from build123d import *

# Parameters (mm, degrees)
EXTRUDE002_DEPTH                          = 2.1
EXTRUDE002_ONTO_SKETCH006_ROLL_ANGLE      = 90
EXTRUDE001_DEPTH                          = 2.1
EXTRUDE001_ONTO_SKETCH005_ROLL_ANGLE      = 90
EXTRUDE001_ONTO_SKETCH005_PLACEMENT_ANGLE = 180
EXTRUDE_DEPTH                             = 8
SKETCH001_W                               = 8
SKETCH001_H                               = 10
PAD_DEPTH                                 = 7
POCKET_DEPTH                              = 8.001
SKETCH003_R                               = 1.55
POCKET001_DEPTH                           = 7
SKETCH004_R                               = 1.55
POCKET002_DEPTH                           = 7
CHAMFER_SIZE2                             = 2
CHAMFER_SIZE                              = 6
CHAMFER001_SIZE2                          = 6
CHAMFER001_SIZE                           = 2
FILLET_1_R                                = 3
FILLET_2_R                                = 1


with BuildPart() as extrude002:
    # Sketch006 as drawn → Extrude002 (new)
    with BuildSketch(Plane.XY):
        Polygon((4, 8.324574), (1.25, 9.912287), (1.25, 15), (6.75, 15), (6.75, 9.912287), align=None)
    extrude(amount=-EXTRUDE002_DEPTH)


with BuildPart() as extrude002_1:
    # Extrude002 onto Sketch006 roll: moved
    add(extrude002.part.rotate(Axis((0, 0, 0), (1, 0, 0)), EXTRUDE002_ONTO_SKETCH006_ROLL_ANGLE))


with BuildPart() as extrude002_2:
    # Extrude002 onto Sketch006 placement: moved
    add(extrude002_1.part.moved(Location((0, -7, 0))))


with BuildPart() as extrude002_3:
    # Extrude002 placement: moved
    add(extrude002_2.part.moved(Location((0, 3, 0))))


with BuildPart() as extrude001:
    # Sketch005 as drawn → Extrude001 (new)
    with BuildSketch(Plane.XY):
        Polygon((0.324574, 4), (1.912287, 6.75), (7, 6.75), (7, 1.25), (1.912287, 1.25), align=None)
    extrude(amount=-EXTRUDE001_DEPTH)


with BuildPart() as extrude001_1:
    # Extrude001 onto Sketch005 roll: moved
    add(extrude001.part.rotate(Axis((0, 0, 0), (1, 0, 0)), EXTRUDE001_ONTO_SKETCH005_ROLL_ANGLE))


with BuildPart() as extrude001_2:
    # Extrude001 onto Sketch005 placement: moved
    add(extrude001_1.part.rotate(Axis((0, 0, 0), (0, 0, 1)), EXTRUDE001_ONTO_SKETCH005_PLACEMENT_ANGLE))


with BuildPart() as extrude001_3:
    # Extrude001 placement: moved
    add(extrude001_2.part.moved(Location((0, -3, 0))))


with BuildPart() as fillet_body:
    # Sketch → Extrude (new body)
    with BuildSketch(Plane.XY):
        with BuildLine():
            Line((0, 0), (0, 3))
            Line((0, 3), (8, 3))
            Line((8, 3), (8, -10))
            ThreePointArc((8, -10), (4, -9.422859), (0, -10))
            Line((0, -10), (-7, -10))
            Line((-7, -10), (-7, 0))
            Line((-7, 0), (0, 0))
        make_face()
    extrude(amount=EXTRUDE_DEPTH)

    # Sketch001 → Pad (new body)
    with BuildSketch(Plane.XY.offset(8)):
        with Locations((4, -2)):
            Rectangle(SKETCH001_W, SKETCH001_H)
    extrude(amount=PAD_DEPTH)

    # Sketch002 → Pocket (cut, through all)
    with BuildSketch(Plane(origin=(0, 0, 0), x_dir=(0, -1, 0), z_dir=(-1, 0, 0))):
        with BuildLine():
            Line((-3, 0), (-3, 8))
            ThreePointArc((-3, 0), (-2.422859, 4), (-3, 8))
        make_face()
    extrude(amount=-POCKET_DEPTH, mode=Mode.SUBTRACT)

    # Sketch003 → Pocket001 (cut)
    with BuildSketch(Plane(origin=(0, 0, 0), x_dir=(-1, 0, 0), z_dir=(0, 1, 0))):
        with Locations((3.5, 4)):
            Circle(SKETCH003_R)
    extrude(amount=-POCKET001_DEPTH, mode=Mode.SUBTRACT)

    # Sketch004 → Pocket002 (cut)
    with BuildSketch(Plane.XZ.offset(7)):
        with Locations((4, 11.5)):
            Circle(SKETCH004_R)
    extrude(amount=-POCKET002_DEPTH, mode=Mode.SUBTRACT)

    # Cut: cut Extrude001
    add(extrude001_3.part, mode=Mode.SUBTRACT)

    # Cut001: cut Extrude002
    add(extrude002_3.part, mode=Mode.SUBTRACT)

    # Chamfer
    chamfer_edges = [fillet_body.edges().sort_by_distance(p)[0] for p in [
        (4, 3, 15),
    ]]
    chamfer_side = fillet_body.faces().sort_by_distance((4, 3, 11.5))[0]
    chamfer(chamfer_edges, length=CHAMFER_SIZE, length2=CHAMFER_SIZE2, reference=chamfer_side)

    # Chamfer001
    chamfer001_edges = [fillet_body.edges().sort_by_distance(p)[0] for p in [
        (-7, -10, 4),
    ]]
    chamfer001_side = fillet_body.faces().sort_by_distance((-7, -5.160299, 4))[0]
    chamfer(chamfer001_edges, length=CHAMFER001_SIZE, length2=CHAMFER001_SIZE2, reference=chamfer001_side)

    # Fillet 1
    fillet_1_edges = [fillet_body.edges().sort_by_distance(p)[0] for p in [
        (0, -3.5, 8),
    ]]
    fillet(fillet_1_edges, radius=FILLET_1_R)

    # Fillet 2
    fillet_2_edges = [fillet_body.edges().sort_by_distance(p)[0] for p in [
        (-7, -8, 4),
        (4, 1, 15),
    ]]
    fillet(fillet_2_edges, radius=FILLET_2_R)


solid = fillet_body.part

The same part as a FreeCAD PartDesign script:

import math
import FreeCAD as App
import Part
import Sketcher
Q = App.Units.Quantity


def edges_at(feature, points):
    """Names of the edges that pass closest to the given points."""
    edges = feature.Shape.Edges
    near = lambda p: min(range(len(edges)), key=lambda i: edges[i].distToShape(Part.Vertex(*p))[0])
    return sorted({f"Edge{near(p) + 1}" for p in points})

doc = App.newDocument("Part")
params = doc.addObject("Spreadsheet::Sheet", "Params")
for row, (alias, value) in enumerate([
    ("sketch1_width", "5.5 mm"),
    ("pad1_length", "2.1 mm"),
    ("sketch2_height", "5.5 mm"),
    ("pad2_length", "2.1 mm"),
    ("sketch3_width", "7 mm"),
    ("sketch3_width2", "8 mm"),
    ("sketch3_height", "3 mm"),
    ("sketch3_height2", "10 mm"),
    ("sketch3_radius", "14.150001 mm"),
    ("pad3_length", "8 mm"),
    ("sketch4_width", "8 mm"),
    ("sketch4_height", "10 mm"),
    ("pad4_length", "7 mm"),
    ("sketch5_height", "8 mm"),
    ("sketch5_radius", "14.150001 mm"),
    ("sketch6_diameter", "3.1 mm"),
    ("pocket2_length", "7 mm"),
    ("sketch7_diameter", "3.1 mm"),
    ("pocket3_length", "7 mm"),
    ("chamfer_size", "6 mm"),
    ("chamfer_size2", "2 mm"),
    ("chamfer2_size", "2 mm"),
    ("chamfer2_size2", "6 mm"),
    ("fillet_radius", "3 mm"),
    ("fillet2_radius", "1 mm"),
], start=1):
    params.set(f"A{row}", alias)
    params.set(f"B{row}", "=" + value)
    params.setAlias(f"B{row}", alias)

body = doc.addObject("PartDesign::Body", "Body")

# Sketch on XY plane
sketch1 = body.newObject("Sketcher::SketchObject", "Sketch")
sketch1.AttachmentSupport = (doc.getObject("XY_Plane"), [""])
sketch1.MapMode = "FlatFace"
sketch1.addGeometry([
    Part.LineSegment(App.Vector(1.2, 9.9, 0), App.Vector(4, 8.3, 0)),  # 0
    Part.LineSegment(App.Vector(4, 8.3, 0), App.Vector(6.8, 9.9, 0)),  # 1
    Part.LineSegment(App.Vector(6.8, 9.9, 0), App.Vector(6.8, 15, 0)),  # 2
    Part.LineSegment(App.Vector(6.8, 15, 0), App.Vector(1.2, 15, 0)),  # 3
    Part.LineSegment(App.Vector(1.2, 15, 0), App.Vector(1.2, 9.9, 0)),  # 4
], False)
sketch1.addConstraint([
    Sketcher.Constraint("Coincident", 0, 2, 1, 1),
    Sketcher.Constraint("Coincident", 1, 2, 2, 1),
    Sketcher.Constraint("Coincident", 2, 2, 3, 1),
    Sketcher.Constraint("Coincident", 3, 2, 4, 1),
    Sketcher.Constraint("Coincident", 4, 2, 0, 1),
    Sketcher.Constraint("Vertical", 2),
    Sketcher.Constraint("Horizontal", 3),
    Sketcher.Constraint("Vertical", 4),
    Sketcher.Constraint("Horizontal", 1, 2, 4, 2),
    Sketcher.Constraint("Equal", 0, 1),
    Sketcher.Constraint("Angle", 0, Q("-29.999996 deg")),
    Sketcher.Constraint("DistanceX", 3, 2, 3, 1, Q("5.5 mm")),
    Sketcher.Constraint("DistanceX", -1, 1, 0, 2, Q("4 mm")),
    Sketcher.Constraint("DistanceY", -1, 1, 2, 2, Q("15 mm")),
    Sketcher.Constraint("DistanceY", 2, 1, 2, 2, Q("5.087713 mm")),
])
sketch1.setExpression("Constraints[11]", "Params.sketch1_width")
pad1 = body.newObject("PartDesign::Pad", "Pad")
pad1.Profile = sketch1
pad1.setExpression("Length", "Params.pad1_length")
pad1.Reversed = True
body2 = doc.addObject("PartDesign::Body", "Body001")
doc.recompute()

body.Placement = App.Placement(App.Vector(0, 0, 0), App.Rotation(App.Vector(1, 0, 0), 90))
boolean = body2.newObject("PartDesign::Boolean", "Boolean")
boolean.Type = "Fuse"
boolean.addObjects([body])
body3 = doc.addObject("PartDesign::Body", "Body002")
doc.recompute()

body2.Placement = App.Placement(App.Vector(0, -7, 0), App.Rotation(App.Vector(0, 0, 1), 0))
boolean2 = body3.newObject("PartDesign::Boolean", "Boolean001")
boolean2.Type = "Fuse"
boolean2.addObjects([body2])
body4 = doc.addObject("PartDesign::Body", "Body003")
doc.recompute()

body3.Placement = App.Placement(App.Vector(0, 3, 0), App.Rotation(App.Vector(0, 0, 1), 0))
boolean3 = body4.newObject("PartDesign::Boolean", "Boolean002")
boolean3.Type = "Fuse"
boolean3.addObjects([body3])
body5 = doc.addObject("PartDesign::Body", "Body004")

# Sketch on XY plane
sketch2 = body5.newObject("Sketcher::SketchObject", "Sketch001")
sketch2.AttachmentSupport = (doc.getObject("XY_Plane004"), [""])
sketch2.MapMode = "FlatFace"
sketch2.addGeometry([
    Part.LineSegment(App.Vector(1.9, 6.8, 0), App.Vector(0.3, 4, 0)),  # 0
    Part.LineSegment(App.Vector(0.3, 4, 0), App.Vector(1.9, 1.2, 0)),  # 1
    Part.LineSegment(App.Vector(1.9, 1.2, 0), App.Vector(7, 1.2, 0)),  # 2
    Part.LineSegment(App.Vector(7, 1.2, 0), App.Vector(7, 6.8, 0)),  # 3
    Part.LineSegment(App.Vector(7, 6.8, 0), App.Vector(1.9, 6.8, 0)),  # 4
], False)
sketch2.addConstraint([
    Sketcher.Constraint("Coincident", 0, 2, 1, 1),
    Sketcher.Constraint("Coincident", 1, 2, 2, 1),
    Sketcher.Constraint("Coincident", 2, 2, 3, 1),
    Sketcher.Constraint("Coincident", 3, 2, 4, 1),
    Sketcher.Constraint("Coincident", 4, 2, 0, 1),
    Sketcher.Constraint("Horizontal", 2),
    Sketcher.Constraint("Vertical", 3),
    Sketcher.Constraint("Horizontal", 4),
    Sketcher.Constraint("Vertical", 1, 2, 4, 2),
    Sketcher.Constraint("Equal", 0, 1),
    Sketcher.Constraint("Angle", 0, Q("-119.999996 deg")),
    Sketcher.Constraint("DistanceY", 3, 1, 3, 2, Q("5.5 mm")),
    Sketcher.Constraint("DistanceY", -1, 1, 0, 2, Q("4 mm")),
    Sketcher.Constraint("DistanceX", -1, 1, 2, 2, Q("7 mm")),
    Sketcher.Constraint("DistanceX", 2, 1, 2, 2, Q("5.087713 mm")),
])
sketch2.setExpression("Constraints[11]", "Params.sketch2_height")
pad2 = body5.newObject("PartDesign::Pad", "Pad001")
pad2.Profile = sketch2
pad2.setExpression("Length", "Params.pad2_length")
pad2.Reversed = True
body6 = doc.addObject("PartDesign::Body", "Body005")
doc.recompute()

body5.Placement = App.Placement(App.Vector(0, 0, 0), App.Rotation(App.Vector(1, 0, 0), 90))
boolean4 = body6.newObject("PartDesign::Boolean", "Boolean003")
boolean4.Type = "Fuse"
boolean4.addObjects([body5])
body7 = doc.addObject("PartDesign::Body", "Body006")
doc.recompute()

body6.Placement = App.Placement(App.Vector(0, 0, 0), App.Rotation(App.Vector(0, 0, 1), 180))
boolean5 = body7.newObject("PartDesign::Boolean", "Boolean004")
boolean5.Type = "Fuse"
boolean5.addObjects([body6])
body8 = doc.addObject("PartDesign::Body", "Body007")
doc.recompute()

body7.Placement = App.Placement(App.Vector(0, -3, 0), App.Rotation(App.Vector(0, 0, 1), 0))
boolean6 = body8.newObject("PartDesign::Boolean", "Boolean005")
boolean6.Type = "Fuse"
boolean6.addObjects([body7])
body9 = doc.addObject("PartDesign::Body", "Body008")

# Sketch on XY plane
sketch3 = body9.newObject("Sketcher::SketchObject", "Sketch002")
sketch3.AttachmentSupport = (doc.getObject("XY_Plane008"), [""])
sketch3.MapMode = "FlatFace"
sketch3.addGeometry([
    Part.LineSegment(App.Vector(0, 3, 0), App.Vector(0, 0, 0)),  # 0
    Part.LineSegment(App.Vector(0, 0, 0), App.Vector(-7, 0, 0)),  # 1
    Part.LineSegment(App.Vector(-7, 0, 0), App.Vector(-7, -10, 0)),  # 2
    Part.LineSegment(App.Vector(-7, -10, 0), App.Vector(0, -10, 0)),  # 3
    Part.ArcOfCircle(Part.Circle(App.Vector(4, -23.6, 0), App.Vector(0, 0, 1), 14.2), math.radians(74), math.radians(106)),  # 4
    Part.LineSegment(App.Vector(8, -10, 0), App.Vector(8, 3, 0)),  # 5
    Part.LineSegment(App.Vector(8, 3, 0), App.Vector(0, 3, 0)),  # 6
], False)
sketch3.addConstraint([
    Sketcher.Constraint("Coincident", 0, 2, 1, 1),
    Sketcher.Constraint("Coincident", 1, 2, 2, 1),
    Sketcher.Constraint("Coincident", 2, 2, 3, 1),
    Sketcher.Constraint("Coincident", 3, 2, 4, 2),
    Sketcher.Constraint("Coincident", 4, 1, 5, 1),
    Sketcher.Constraint("Coincident", 5, 2, 6, 1),
    Sketcher.Constraint("Coincident", 6, 2, 0, 1),
    Sketcher.Constraint("Vertical", 0),
    Sketcher.Constraint("Horizontal", 1),
    Sketcher.Constraint("Vertical", 2),
    Sketcher.Constraint("Horizontal", 3),
    Sketcher.Constraint("Vertical", 5),
    Sketcher.Constraint("Horizontal", 6),
    Sketcher.Constraint("Coincident", 0, 2, -1, 1),
    Sketcher.Constraint("PointOnObject", 3, 2, -2),
    Sketcher.Constraint("Horizontal", 3, 2, 4, 1),
    Sketcher.Constraint("DistanceX", 1, 2, 1, 1, Q("7 mm")),
    Sketcher.Constraint("DistanceX", 6, 2, 6, 1, Q("8 mm")),
    Sketcher.Constraint("DistanceY", 0, 2, 0, 1, Q("3 mm")),
    Sketcher.Constraint("DistanceY", 2, 2, 2, 1, Q("10 mm")),
    Sketcher.Constraint("Radius", 4, Q("14.150001 mm")),
])
sketch3.setExpression("Constraints[16]", "Params.sketch3_width")
sketch3.setExpression("Constraints[17]", "Params.sketch3_width2")
sketch3.setExpression("Constraints[18]", "Params.sketch3_height")
sketch3.setExpression("Constraints[19]", "Params.sketch3_height2")
sketch3.setExpression("Constraints[20]", "Params.sketch3_radius")
pad3 = body9.newObject("PartDesign::Pad", "Pad002")
pad3.Profile = sketch3
pad3.setExpression("Length", "Params.pad3_length")

# Sketch on XY plane
sketch4 = body9.newObject("Sketcher::SketchObject", "Sketch003")
sketch4.AttachmentSupport = (doc.getObject("XY_Plane008"), [""])
sketch4.MapMode = "FlatFace"
sketch4.AttachmentOffset = App.Placement(App.Vector(0, 0, 8), App.Rotation())
sketch4.addGeometry([
    Part.LineSegment(App.Vector(0, 3, 0), App.Vector(0, -7, 0)),
    Part.LineSegment(App.Vector(0, -7, 0), App.Vector(8, -7, 0)),
    Part.LineSegment(App.Vector(8, -7, 0), App.Vector(8, 3, 0)),
    Part.LineSegment(App.Vector(8, 3, 0), App.Vector(0, 3, 0)),
], False)
sketch4.addConstraint([
    Sketcher.Constraint("Coincident", 0, 2, 1, 1),
    Sketcher.Constraint("Coincident", 1, 2, 2, 1),
    Sketcher.Constraint("Coincident", 2, 2, 3, 1),
    Sketcher.Constraint("Coincident", 3, 2, 0, 1),
    Sketcher.Constraint("Vertical", 0),
    Sketcher.Constraint("Horizontal", 1),
    Sketcher.Constraint("Vertical", 2),
    Sketcher.Constraint("Horizontal", 3),
    Sketcher.Constraint("PointOnObject", 0, 2, -2),
    Sketcher.Constraint("DistanceX", 1, 1, 1, 2, Q("8 mm")),
    Sketcher.Constraint("DistanceY", 0, 2, 0, 1, Q("10 mm")),
    Sketcher.Constraint("DistanceY", 0, 2, -1, 1, Q("7 mm")),
])
sketch4.setExpression("Constraints[9]", "Params.sketch4_width")
sketch4.setExpression("Constraints[10]", "Params.sketch4_height")
pad4 = body9.newObject("PartDesign::Pad", "Pad003")
pad4.Profile = sketch4
pad4.setExpression("Length", "Params.pad4_length")

# Sketch on YZ plane
sketch5 = body9.newObject("Sketcher::SketchObject", "Sketch004")
sketch5.AttachmentSupport = (doc.getObject("YZ_Plane008"), [""])
sketch5.MapMode = "FlatFace"
sketch5.addGeometry([
    Part.LineSegment(App.Vector(3, 8, 0), App.Vector(3, 0, 0)),
    Part.ArcOfCircle(Part.Circle(App.Vector(17, 4, 0), App.Vector(0, 0, 1), 14), math.radians(164), math.radians(196)),
], False)
sketch5.addConstraint([
    Sketcher.Constraint("Coincident", 0, 1, 1, 1),
    Sketcher.Constraint("Coincident", 1, 2, 0, 2),
    Sketcher.Constraint("Vertical", 0),
    Sketcher.Constraint("PointOnObject", 1, 2, -1),
    Sketcher.Constraint("DistanceY", 0, 2, 0, 1, Q("8 mm")),
    Sketcher.Constraint("Radius", 1, Q("14.150001 mm")),
    Sketcher.Constraint("DistanceX", -1, 1, 0, 1, Q("3 mm")),
])
sketch5.setExpression("Constraints[4]", "Params.sketch5_height")
sketch5.setExpression("Constraints[5]", "Params.sketch5_radius")
pocket1 = body9.newObject("PartDesign::Pocket", "Pocket")
pocket1.Profile = sketch5
pocket1.Type = "ThroughAll"
pocket1.Reversed = True

# Sketch on XZ plane
sketch6 = body9.newObject("Sketcher::SketchObject", "Sketch005")
sketch6.AttachmentSupport = (doc.getObject("XZ_Plane008"), [""])
sketch6.MapMode = "FlatFace"
sketch6.addGeometry(Part.Circle(App.Vector(-3.5, 4, 0), App.Vector(0, 0, 1), 1.6), False)
sketch6.addConstraint([
    Sketcher.Constraint("Diameter", 0, Q("3.1 mm")),
    Sketcher.Constraint("DistanceY", -1, 1, 0, 3, Q("4 mm")),
    Sketcher.Constraint("DistanceX", 0, 3, -1, 1, Q("3.5 mm")),
])
sketch6.setExpression("Constraints[0]", "Params.sketch6_diameter")
pocket2 = body9.newObject("PartDesign::Pocket", "Pocket001")
pocket2.Profile = sketch6
pocket2.setExpression("Length", "Params.pocket2_length")
pocket2.Reversed = True

# Sketch on XZ plane
sketch7 = body9.newObject("Sketcher::SketchObject", "Sketch006")
sketch7.AttachmentSupport = (doc.getObject("XZ_Plane008"), [""])
sketch7.MapMode = "FlatFace"
sketch7.AttachmentOffset = App.Placement(App.Vector(0, 0, 7), App.Rotation())
sketch7.addGeometry(Part.Circle(App.Vector(4, 11.5, 0), App.Vector(0, 0, 1), 1.6), False)
sketch7.addConstraint([
    Sketcher.Constraint("Diameter", 0, Q("3.1 mm")),
    Sketcher.Constraint("DistanceX", -1, 1, 0, 3, Q("4 mm")),
    Sketcher.Constraint("DistanceY", -1, 1, 0, 3, Q("11.5 mm")),
])
sketch7.setExpression("Constraints[0]", "Params.sketch7_diameter")
pocket3 = body9.newObject("PartDesign::Pocket", "Pocket002")
pocket3.Profile = sketch7
pocket3.setExpression("Length", "Params.pocket3_length")
doc.recompute()

boolean7 = body9.newObject("PartDesign::Boolean", "Boolean006")
boolean7.Type = "Cut"
boolean7.addObjects([body8])
doc.recompute()

boolean8 = body9.newObject("PartDesign::Boolean", "Boolean007")
boolean8.Type = "Cut"
boolean8.addObjects([body4])
doc.recompute()

chamfer = body9.newObject("PartDesign::Chamfer", "Chamfer")
chamfer.Base = (boolean8, edges_at(boolean8, [(4, 3, 15)]))
chamfer.ChamferType = "Two distances"
chamfer.setExpression("Size", "Params.chamfer_size")
chamfer.setExpression("Size2", "Params.chamfer_size2")
doc.recompute()

chamfer2 = body9.newObject("PartDesign::Chamfer", "Chamfer001")
chamfer2.Base = (chamfer, edges_at(chamfer, [(-7, -10, 4)]))
chamfer2.ChamferType = "Two distances"
chamfer2.setExpression("Size", "Params.chamfer2_size")
chamfer2.setExpression("Size2", "Params.chamfer2_size2")
doc.recompute()

fillet = body9.newObject("PartDesign::Fillet", "Fillet")
fillet.Base = (chamfer2, edges_at(chamfer2, [(0, -3.5, 8)]))
fillet.setExpression("Radius", "Params.fillet_radius")
doc.recompute()

fillet2 = body9.newObject("PartDesign::Fillet", "Fillet001")
fillet2.Base = (fillet, edges_at(fillet, [(-7, -8, 4), (4, 1, 15)]))
fillet2.setExpression("Radius", "Params.fillet2_radius")

doc.recompute()
